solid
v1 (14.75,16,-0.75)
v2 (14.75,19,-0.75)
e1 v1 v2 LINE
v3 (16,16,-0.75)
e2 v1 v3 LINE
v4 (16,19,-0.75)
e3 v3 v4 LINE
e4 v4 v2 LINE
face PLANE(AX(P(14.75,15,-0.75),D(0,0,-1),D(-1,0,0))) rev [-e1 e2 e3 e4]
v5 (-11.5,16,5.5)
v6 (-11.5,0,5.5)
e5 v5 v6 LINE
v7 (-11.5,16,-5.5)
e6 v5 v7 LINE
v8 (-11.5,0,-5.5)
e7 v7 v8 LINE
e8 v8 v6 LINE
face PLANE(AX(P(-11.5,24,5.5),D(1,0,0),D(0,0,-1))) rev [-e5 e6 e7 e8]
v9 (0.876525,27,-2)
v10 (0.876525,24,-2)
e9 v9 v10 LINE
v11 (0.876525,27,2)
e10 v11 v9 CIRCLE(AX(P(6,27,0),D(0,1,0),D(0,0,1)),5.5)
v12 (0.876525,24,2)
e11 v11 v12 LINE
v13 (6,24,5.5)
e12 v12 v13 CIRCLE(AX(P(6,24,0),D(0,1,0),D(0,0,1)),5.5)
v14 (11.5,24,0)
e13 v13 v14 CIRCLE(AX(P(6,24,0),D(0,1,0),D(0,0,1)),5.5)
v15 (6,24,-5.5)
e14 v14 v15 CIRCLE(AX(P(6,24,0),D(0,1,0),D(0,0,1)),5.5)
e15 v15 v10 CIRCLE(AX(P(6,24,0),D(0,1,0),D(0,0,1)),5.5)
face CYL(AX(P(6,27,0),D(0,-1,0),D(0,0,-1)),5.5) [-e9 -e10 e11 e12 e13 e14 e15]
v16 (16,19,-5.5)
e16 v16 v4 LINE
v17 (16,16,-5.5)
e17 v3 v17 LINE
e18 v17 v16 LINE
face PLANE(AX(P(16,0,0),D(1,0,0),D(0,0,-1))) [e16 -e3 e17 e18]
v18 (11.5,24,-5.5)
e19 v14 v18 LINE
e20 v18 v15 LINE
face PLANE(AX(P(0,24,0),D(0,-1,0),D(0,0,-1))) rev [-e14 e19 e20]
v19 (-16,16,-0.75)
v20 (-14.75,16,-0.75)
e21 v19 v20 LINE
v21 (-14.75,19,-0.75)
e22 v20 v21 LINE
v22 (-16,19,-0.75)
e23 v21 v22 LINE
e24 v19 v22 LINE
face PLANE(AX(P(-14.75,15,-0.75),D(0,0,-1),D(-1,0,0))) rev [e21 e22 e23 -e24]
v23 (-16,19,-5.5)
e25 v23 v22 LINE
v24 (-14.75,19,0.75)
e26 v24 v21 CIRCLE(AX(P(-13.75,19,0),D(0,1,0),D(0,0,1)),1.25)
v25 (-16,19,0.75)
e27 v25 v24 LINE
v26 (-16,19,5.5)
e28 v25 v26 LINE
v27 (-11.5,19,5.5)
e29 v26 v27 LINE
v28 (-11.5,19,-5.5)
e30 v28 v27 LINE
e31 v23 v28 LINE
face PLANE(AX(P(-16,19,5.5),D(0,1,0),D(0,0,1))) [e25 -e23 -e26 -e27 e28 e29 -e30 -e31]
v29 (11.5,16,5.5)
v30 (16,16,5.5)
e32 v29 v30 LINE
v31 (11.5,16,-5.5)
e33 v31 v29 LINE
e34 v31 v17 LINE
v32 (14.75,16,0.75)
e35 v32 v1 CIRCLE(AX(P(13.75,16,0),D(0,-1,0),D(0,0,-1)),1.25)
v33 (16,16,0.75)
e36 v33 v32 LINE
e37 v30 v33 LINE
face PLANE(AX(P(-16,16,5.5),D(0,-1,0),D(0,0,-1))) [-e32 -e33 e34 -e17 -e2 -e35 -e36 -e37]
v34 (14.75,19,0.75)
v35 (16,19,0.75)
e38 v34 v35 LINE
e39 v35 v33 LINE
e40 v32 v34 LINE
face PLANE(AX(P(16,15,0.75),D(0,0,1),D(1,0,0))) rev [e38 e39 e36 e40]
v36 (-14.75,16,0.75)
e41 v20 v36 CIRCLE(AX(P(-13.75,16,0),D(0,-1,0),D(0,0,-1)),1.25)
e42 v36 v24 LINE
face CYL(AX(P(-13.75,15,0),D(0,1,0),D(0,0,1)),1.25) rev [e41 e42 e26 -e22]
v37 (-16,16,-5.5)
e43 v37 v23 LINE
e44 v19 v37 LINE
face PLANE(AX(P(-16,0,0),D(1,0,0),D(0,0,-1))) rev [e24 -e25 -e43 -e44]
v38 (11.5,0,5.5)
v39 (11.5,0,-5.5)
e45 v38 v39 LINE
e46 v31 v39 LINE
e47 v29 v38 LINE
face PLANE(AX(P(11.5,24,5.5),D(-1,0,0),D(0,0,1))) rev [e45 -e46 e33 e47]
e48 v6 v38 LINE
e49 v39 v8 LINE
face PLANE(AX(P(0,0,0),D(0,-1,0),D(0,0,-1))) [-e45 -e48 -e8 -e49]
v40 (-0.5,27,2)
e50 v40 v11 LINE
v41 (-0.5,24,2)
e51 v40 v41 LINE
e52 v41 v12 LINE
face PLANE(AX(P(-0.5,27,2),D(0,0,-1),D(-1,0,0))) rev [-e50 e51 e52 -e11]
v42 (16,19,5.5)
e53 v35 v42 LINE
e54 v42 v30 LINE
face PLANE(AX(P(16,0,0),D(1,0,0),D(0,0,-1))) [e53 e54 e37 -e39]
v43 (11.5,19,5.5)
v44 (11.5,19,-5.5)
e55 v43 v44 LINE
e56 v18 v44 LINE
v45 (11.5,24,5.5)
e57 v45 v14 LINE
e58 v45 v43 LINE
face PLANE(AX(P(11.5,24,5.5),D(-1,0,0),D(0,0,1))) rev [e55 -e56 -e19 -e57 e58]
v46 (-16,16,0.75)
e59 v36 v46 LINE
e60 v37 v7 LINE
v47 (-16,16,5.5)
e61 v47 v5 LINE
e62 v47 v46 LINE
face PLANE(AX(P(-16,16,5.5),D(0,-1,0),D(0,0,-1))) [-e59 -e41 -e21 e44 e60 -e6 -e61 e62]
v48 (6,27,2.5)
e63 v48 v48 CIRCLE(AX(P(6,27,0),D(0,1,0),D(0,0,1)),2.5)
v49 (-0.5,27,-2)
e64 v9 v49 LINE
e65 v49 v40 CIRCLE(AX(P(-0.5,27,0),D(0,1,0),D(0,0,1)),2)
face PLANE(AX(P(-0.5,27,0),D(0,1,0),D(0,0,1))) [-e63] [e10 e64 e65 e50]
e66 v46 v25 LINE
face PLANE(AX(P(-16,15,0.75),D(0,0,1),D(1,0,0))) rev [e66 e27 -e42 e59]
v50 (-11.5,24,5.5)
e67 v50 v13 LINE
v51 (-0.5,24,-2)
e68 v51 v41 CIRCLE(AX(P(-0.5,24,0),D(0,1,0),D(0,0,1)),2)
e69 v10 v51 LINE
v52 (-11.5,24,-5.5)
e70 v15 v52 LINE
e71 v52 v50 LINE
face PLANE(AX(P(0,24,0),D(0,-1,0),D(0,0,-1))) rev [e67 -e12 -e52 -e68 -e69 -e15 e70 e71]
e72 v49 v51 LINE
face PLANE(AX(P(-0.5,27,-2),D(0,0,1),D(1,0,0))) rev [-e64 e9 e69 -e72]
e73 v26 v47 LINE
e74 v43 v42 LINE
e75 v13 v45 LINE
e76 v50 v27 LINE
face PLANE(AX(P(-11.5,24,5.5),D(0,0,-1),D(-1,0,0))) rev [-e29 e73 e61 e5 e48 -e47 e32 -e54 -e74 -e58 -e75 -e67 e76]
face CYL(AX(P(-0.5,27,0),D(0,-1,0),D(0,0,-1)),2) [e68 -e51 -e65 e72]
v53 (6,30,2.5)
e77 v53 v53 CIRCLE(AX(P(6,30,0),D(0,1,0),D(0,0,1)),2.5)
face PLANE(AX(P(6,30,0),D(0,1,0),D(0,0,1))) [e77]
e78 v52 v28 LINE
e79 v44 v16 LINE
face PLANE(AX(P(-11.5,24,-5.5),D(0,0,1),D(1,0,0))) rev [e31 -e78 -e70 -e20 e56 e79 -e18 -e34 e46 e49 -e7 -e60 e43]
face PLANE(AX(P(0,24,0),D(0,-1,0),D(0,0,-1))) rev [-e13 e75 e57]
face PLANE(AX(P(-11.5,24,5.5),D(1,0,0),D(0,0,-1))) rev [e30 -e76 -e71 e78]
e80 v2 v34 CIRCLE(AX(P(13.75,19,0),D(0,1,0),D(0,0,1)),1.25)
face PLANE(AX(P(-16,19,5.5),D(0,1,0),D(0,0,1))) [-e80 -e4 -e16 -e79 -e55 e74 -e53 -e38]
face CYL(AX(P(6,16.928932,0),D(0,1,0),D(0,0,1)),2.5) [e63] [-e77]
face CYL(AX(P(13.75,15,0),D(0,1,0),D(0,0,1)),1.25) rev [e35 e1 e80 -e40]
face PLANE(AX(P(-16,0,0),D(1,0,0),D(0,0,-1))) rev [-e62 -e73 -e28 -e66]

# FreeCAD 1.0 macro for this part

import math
import FreeCAD as App
import Part
import Sketcher
from FreeCAD import Vector


def add_polygon(sketch, points):
    """Adds a closed chain of lines whose ends are joined by coincident constraints."""
    first, n = sketch.GeometryCount, len(points)
    for a, b in zip(points, points[1:] + points[:1]):
        sketch.addGeometry(Part.LineSegment(App.Vector(*a, 0), App.Vector(*b, 0)), False)
    for i in range(n):
        sketch.addConstraint(Sketcher.Constraint("Coincident", first + i, 2, first + (i + 1) % n, 1))

doc = App.newDocument("Part")
body = doc.addObject("PartDesign::Body", "Body")

sketch1 = body.newObject("Sketcher::SketchObject", "Sketch")
sketch1.AttachmentSupport = (doc.getObject("XZ_Plane"), [""])
sketch1.MapMode = "FlatFace"
add_polygon(sketch1, [(-11.5, -5.5), (-11.5, 5.5), (11.5, 5.5), (11.5, -5.5)])
sketch1.addConstraint(Sketcher.Constraint("Vertical", 0))
sketch1.addConstraint(Sketcher.Constraint("Horizontal", 1))
sketch1.addConstraint(Sketcher.Constraint("Vertical", 2))
sketch1.addConstraint(Sketcher.Constraint("Horizontal", 3))
sketch1.addConstraint(Sketcher.Constraint("Symmetric", 0, 2, 2, 2, -1, 1))
sketch1.addConstraint(Sketcher.Constraint("DistanceX", 1, 1, 1, 2, 23.0))
sketch1.addConstraint(Sketcher.Constraint("DistanceY", 0, 1, 0, 2, 11.0))
pad1 = body.newObject("PartDesign::Pad", "Pad")
pad1.Profile = sketch1
pad1.Length = 24
pad1.Reversed = True

sketch2 = body.newObject("Sketcher::SketchObject", "Sketch001")
sketch2.AttachmentSupport = (doc.getObject("YZ_Plane"), [""])
sketch2.MapMode = "FlatFace"
sketch2.AttachmentOffset = App.Placement(Vector(0, 0, 11.5), App.Rotation())
add_polygon(sketch2, [(19, 5.5), (16, 5.5), (16, -5.5), (19, -5.5)])
sketch2.addConstraint(Sketcher.Constraint("Horizontal", 0))
sketch2.addConstraint(Sketcher.Constraint("Vertical", 1))
sketch2.addConstraint(Sketcher.Constraint("Horizontal", 2))
sketch2.addConstraint(Sketcher.Constraint("Vertical", 3))
sketch2.addConstraint(Sketcher.Constraint("DistanceX", 0, 2, 0, 1, 3.0))
sketch2.addConstraint(Sketcher.Constraint("DistanceY", 1, 2, 1, 1, 11.0))
sketch2.addConstraint(Sketcher.Constraint("DistanceX", -1, 1, 0, 2, 16.0))
sketch2.addConstraint(Sketcher.Constraint("DistanceY", -1, 1, 0, 2, 5.5))
pad2 = body.newObject("PartDesign::Pad", "Pad001")
pad2.Profile = sketch2
pad2.Type = "TwoLengths"
pad2.Length = 4.5
pad2.Length2 = 27.5

sketch3 = body.newObject("Sketcher::SketchObject", "Sketch002")
sketch3.AttachmentSupport = (doc.getObject("XZ_Plane"), [""])
sketch3.MapMode = "FlatFace"
sketch3.AttachmentOffset = App.Placement(Vector(0, 0, -24), App.Rotation())
sketch3.addGeometry(Part.LineSegment(Vector(0.876525, -2, 0), Vector(-0.5, -2, 0)), False)
sketch3.addGeometry(Part.ArcOfCircle(Part.Circle(Vector(-0.5, 0, 0), Vector(0, 0, 1), 2), math.radians(90), math.radians(270)), False)
sketch3.addGeometry(Part.LineSegment(Vector(-0.5, 2, 0), Vector(0.876525, 2, 0)), False)
sketch3.addGeometry(Part.ArcOfCircle(Part.Circle(Vector(6, 0, 0), Vector(0, 0, 1), 5.5), math.radians(-158.676314), math.radians(158.676314)), False)
sketch3.addGeometry(Part.Circle(Vector(6, 0, 0), Vector(0, 0, 1), 2.5), False)
sketch3.addConstraint(Sketcher.Constraint("Tangent", 0, 2, 1, 2))
sketch3.addConstraint(Sketcher.Constraint("Tangent", 1, 1, 2, 1))
sketch3.addConstraint(Sketcher.Constraint("Coincident", 2, 2, 3, 2))
sketch3.addConstraint(Sketcher.Constraint("Coincident", 3, 1, 0, 1))
sketch3.addConstraint(Sketcher.Constraint("Horizontal", 0))
sketch3.addConstraint(Sketcher.Constraint("Horizontal", 2))
sketch3.addConstraint(Sketcher.Constraint("Coincident", 4, 3, 3, 3))
sketch3.addConstraint(Sketcher.Constraint("Symmetric", 2, 2, 3, 1, -1))
sketch3.addConstraint(Sketcher.Constraint("Diameter", 4, 5.0))
sketch3.addConstraint(Sketcher.Constraint("Radius", 1, 2.0))
sketch3.addConstraint(Sketcher.Constraint("Radius", 3, 5.5))
sketch3.addConstraint(Sketcher.Constraint("DistanceX", -1, 1, 3, 3, 6.0))
sketch3.addConstraint(Sketcher.Constraint("DistanceX", 1, 3, -1, 1, 0.5))
pad3 = body.newObject("PartDesign::Pad", "Pad002")
pad3.Profile = sketch3
pad3.Length = 3
pad3.Reversed = True

sketch4 = body.newObject("Sketcher::SketchObject", "Sketch003")
sketch4.AttachmentSupport = (doc.getObject("XZ_Plane"), [""])
sketch4.MapMode = "FlatFace"
sketch4.AttachmentOffset = App.Placement(Vector(0, 0, -27), App.Rotation())
sketch4.addGeometry(Part.Circle(Vector(6, 0, 0), Vector(0, 0, 1), 2.5), False)
sketch4.addConstraint(Sketcher.Constraint("PointOnObject", 0, 3, -1))
sketch4.addConstraint(Sketcher.Constraint("Diameter", 0, 5.0))
sketch4.addConstraint(Sketcher.Constraint("DistanceX", -1, 1, 0, 3, 6.0))
pad4 = body.newObject("PartDesign::Pad", "Pad003")
pad4.Profile = sketch4
pad4.Type = "TwoLengths"
pad4.Length = 3
pad4.Length2 = 27
pad4.Reversed = True

sketch5 = body.newObject("Sketcher::SketchObject", "Sketch004")
sketch5.AttachmentSupport = (doc.getObject("XZ_Plane"), [""])
sketch5.MapMode = "FlatFace"
sketch5.AttachmentOffset = App.Placement(Vector(0, 0, -19), App.Rotation())
sketch5.addGeometry(Part.LineSegment(Vector(-16, 0.75, 0), Vector(-14.75, 0.75, 0)), False)
sketch5.addGeometry(Part.ArcOfCircle(Part.Circle(Vector(-13.75, 0, 0), Vector(0, 0, 1), 1.25), math.radians(-143.130102), math.radians(143.130102)), False)
sketch5.addGeometry(Part.LineSegment(Vector(-14.75, -0.75, 0), Vector(-16, -0.75, 0)), False)
sketch5.addGeometry(Part.LineSegment(Vector(-16, -0.75, 0), Vector(-16, 0.75, 0)), False)
sketch5.addGeometry(Part.LineSegment(Vector(16, -0.75, 0), Vector(14.75, -0.75, 0)), False)
sketch5.addGeometry(Part.ArcOfCircle(Part.Circle(Vector(13.75, 0, 0), Vector(0, 0, 1), 1.25), math.radians(36.869898), math.radians(323.130102)), False)
sketch5.addGeometry(Part.LineSegment(Vector(14.75, 0.75, 0), Vector(16, 0.75, 0)), False)
sketch5.addGeometry(Part.LineSegment(Vector(16, 0.75, 0), Vector(16, -0.75, 0)), False)
sketch5.addConstraint(Sketcher.Constraint("Coincident", 0, 2, 1, 2))
sketch5.addConstraint(Sketcher.Constraint("Coincident", 1, 1, 2, 1))
sketch5.addConstraint(Sketcher.Constraint("Coincident", 2, 2, 3, 1))
sketch5.addConstraint(Sketcher.Constraint("Coincident", 3, 2, 0, 1))
sketch5.addConstraint(Sketcher.Constraint("Coincident", 4, 2, 5, 2))
sketch5.addConstraint(Sketcher.Constraint("Coincident", 5, 1, 6, 1))
sketch5.addConstraint(Sketcher.Constraint("Coincident", 6, 2, 7, 1))
sketch5.addConstraint(Sketcher.Constraint("Coincident", 7, 2, 4, 1))
sketch5.addConstraint(Sketcher.Constraint("Horizontal", 0))
sketch5.addConstraint(Sketcher.Constraint("Horizontal", 2))
sketch5.addConstraint(Sketcher.Constraint("Vertical", 3))
sketch5.addConstraint(Sketcher.Constraint("Horizontal", 4))
sketch5.addConstraint(Sketcher.Constraint("Horizontal", 6))
sketch5.addConstraint(Sketcher.Constraint("Vertical", 7))
sketch5.addConstraint(Sketcher.Constraint("Equal", 1, 5))
sketch5.addConstraint(Sketcher.Constraint("Symmetric", 1, 3, 5, 3, -1, 1))
sketch5.addConstraint(Sketcher.Constraint("Symmetric", 2, 2, 6, 2, -1, 1))
sketch5.addConstraint(Sketcher.Constraint("Symmetric", 1, 1, 4, 2, -2))
sketch5.addConstraint(Sketcher.Constraint("Horizontal", 3, 2, 5, 1))
sketch5.addConstraint(Sketcher.Constraint("Radius", 1, 1.25))
sketch5.addConstraint(Sketcher.Constraint("DistanceY", 3, 1, 3, 2, 1.5))
sketch5.addConstraint(Sketcher.Constraint("DistanceX", 2, 2, -1, 1, 16.0))
sketch5.addConstraint(Sketcher.Constraint("DistanceX", 0, 1, 0, 2, 1.25))
pocket1 = body.newObject("PartDesign::Pocket", "Pocket")
pocket1.Profile = sketch5
pocket1.Length = 4
pocket1.Reversed = True

doc.recompute()
